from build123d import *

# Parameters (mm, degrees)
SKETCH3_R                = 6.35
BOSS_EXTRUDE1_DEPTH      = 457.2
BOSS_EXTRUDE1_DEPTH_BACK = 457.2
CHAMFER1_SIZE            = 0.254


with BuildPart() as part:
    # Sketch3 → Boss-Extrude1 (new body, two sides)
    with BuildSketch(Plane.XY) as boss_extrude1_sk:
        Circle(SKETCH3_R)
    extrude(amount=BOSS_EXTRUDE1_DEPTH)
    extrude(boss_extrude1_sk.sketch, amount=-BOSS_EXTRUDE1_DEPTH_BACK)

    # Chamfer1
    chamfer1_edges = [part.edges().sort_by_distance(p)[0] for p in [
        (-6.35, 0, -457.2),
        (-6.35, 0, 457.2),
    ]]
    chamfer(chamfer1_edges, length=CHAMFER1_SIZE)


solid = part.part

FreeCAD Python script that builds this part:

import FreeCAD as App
import Part
import Sketcher
from FreeCAD import Vector
Q = App.Units.Quantity


def edges_at(feature, points):
    """Names of the edges that pass closest to the given points."""
    edges = feature.Shape.Edges
    near = lambda p: min(range(len(edges)), key=lambda i: edges[i].distToShape(Part.Vertex(*p))[0])
    return sorted({f"Edge{near(p) + 1}" for p in points})

doc = App.newDocument("Part")
body = doc.addObject("PartDesign::Body", "Body")

# Sketch on XY plane
sketch1 = doc.addObject("Sketcher::SketchObject", "Sketch")
body.addObject(sketch1)
sketch1.AttachmentSupport = (doc.XY_Plane, [""])
sketch1.MapMode = "FlatFace"
sketch1.addGeometry(Part.Circle(Vector(0, 0, 0), Vector(0, 0, 1), 6), False)
sketch1.addConstraint(Sketcher.Constraint("Coincident", 0, 3, -1, 1))
sketch1.addConstraint(Sketcher.Constraint("Diameter", 0, Q("0.5 in")))
pad1 = doc.addObject("PartDesign::Pad", "Pad")
body.addObject(pad1)
pad1.Profile = sketch1
pad1.Type = "TwoLengths"
pad1.Length = Q("18 in")
pad1.Length2 = Q("18 in")
doc.recompute()

chamfer = doc.addObject("PartDesign::Chamfer", "Chamfer")
body.addObject(chamfer)
chamfer.Base = (pad1, edges_at(pad1, [(-6.35, 0, -457.2), (-6.35, 0, 457.2)]))
chamfer.Size = Q("0.01 in")

doc.recompute()
